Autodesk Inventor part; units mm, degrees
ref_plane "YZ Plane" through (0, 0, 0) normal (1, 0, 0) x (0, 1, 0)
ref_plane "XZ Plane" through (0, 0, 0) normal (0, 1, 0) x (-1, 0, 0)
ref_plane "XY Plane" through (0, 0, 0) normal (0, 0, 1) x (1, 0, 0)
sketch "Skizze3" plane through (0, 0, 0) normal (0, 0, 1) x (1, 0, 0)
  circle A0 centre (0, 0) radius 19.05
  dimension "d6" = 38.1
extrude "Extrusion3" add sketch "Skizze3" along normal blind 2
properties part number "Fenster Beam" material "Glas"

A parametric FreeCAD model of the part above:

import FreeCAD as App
import Part
import Sketcher

V = App.Vector
Q = App.Units.Quantity

doc = App.newDocument("Part")
params = doc.addObject("Spreadsheet::Sheet", "Params")
for row, (alias, value) in enumerate([
    ("sketch1_diameter", "38.1 mm"),
    ("pad1_length", "2 mm"),
], start=1):
    params.set(f"A{row}", alias)
    params.set(f"B{row}", "=" + value)
    params.setAlias(f"B{row}", alias)

body = doc.addObject("PartDesign::Body", "Body")

# Sketch on XY plane
sketch1 = body.newObject("Sketcher::SketchObject", "Sketch")
sketch1.AttachmentSupport = (doc.getObject("XY_Plane"), [""])
sketch1.MapMode = "FlatFace"
sketch1.addGeometry(Part.Circle(V(0, 0, 0), V(0, 0, 1), 19), False)
sketch1.addConstraint(Sketcher.Constraint("Coincident", 0, 3, -1, 1))
sketch1.addConstraint(Sketcher.Constraint("Diameter", 0, Q("38.1 mm")))
sketch1.setExpression("Constraints[1]", "Params.sketch1_diameter")
pad1 = body.newObject("PartDesign::Pad", "Pad")
pad1.Profile = sketch1
pad1.setExpression("Length", "Params.pad1_length")

doc.recompute()
